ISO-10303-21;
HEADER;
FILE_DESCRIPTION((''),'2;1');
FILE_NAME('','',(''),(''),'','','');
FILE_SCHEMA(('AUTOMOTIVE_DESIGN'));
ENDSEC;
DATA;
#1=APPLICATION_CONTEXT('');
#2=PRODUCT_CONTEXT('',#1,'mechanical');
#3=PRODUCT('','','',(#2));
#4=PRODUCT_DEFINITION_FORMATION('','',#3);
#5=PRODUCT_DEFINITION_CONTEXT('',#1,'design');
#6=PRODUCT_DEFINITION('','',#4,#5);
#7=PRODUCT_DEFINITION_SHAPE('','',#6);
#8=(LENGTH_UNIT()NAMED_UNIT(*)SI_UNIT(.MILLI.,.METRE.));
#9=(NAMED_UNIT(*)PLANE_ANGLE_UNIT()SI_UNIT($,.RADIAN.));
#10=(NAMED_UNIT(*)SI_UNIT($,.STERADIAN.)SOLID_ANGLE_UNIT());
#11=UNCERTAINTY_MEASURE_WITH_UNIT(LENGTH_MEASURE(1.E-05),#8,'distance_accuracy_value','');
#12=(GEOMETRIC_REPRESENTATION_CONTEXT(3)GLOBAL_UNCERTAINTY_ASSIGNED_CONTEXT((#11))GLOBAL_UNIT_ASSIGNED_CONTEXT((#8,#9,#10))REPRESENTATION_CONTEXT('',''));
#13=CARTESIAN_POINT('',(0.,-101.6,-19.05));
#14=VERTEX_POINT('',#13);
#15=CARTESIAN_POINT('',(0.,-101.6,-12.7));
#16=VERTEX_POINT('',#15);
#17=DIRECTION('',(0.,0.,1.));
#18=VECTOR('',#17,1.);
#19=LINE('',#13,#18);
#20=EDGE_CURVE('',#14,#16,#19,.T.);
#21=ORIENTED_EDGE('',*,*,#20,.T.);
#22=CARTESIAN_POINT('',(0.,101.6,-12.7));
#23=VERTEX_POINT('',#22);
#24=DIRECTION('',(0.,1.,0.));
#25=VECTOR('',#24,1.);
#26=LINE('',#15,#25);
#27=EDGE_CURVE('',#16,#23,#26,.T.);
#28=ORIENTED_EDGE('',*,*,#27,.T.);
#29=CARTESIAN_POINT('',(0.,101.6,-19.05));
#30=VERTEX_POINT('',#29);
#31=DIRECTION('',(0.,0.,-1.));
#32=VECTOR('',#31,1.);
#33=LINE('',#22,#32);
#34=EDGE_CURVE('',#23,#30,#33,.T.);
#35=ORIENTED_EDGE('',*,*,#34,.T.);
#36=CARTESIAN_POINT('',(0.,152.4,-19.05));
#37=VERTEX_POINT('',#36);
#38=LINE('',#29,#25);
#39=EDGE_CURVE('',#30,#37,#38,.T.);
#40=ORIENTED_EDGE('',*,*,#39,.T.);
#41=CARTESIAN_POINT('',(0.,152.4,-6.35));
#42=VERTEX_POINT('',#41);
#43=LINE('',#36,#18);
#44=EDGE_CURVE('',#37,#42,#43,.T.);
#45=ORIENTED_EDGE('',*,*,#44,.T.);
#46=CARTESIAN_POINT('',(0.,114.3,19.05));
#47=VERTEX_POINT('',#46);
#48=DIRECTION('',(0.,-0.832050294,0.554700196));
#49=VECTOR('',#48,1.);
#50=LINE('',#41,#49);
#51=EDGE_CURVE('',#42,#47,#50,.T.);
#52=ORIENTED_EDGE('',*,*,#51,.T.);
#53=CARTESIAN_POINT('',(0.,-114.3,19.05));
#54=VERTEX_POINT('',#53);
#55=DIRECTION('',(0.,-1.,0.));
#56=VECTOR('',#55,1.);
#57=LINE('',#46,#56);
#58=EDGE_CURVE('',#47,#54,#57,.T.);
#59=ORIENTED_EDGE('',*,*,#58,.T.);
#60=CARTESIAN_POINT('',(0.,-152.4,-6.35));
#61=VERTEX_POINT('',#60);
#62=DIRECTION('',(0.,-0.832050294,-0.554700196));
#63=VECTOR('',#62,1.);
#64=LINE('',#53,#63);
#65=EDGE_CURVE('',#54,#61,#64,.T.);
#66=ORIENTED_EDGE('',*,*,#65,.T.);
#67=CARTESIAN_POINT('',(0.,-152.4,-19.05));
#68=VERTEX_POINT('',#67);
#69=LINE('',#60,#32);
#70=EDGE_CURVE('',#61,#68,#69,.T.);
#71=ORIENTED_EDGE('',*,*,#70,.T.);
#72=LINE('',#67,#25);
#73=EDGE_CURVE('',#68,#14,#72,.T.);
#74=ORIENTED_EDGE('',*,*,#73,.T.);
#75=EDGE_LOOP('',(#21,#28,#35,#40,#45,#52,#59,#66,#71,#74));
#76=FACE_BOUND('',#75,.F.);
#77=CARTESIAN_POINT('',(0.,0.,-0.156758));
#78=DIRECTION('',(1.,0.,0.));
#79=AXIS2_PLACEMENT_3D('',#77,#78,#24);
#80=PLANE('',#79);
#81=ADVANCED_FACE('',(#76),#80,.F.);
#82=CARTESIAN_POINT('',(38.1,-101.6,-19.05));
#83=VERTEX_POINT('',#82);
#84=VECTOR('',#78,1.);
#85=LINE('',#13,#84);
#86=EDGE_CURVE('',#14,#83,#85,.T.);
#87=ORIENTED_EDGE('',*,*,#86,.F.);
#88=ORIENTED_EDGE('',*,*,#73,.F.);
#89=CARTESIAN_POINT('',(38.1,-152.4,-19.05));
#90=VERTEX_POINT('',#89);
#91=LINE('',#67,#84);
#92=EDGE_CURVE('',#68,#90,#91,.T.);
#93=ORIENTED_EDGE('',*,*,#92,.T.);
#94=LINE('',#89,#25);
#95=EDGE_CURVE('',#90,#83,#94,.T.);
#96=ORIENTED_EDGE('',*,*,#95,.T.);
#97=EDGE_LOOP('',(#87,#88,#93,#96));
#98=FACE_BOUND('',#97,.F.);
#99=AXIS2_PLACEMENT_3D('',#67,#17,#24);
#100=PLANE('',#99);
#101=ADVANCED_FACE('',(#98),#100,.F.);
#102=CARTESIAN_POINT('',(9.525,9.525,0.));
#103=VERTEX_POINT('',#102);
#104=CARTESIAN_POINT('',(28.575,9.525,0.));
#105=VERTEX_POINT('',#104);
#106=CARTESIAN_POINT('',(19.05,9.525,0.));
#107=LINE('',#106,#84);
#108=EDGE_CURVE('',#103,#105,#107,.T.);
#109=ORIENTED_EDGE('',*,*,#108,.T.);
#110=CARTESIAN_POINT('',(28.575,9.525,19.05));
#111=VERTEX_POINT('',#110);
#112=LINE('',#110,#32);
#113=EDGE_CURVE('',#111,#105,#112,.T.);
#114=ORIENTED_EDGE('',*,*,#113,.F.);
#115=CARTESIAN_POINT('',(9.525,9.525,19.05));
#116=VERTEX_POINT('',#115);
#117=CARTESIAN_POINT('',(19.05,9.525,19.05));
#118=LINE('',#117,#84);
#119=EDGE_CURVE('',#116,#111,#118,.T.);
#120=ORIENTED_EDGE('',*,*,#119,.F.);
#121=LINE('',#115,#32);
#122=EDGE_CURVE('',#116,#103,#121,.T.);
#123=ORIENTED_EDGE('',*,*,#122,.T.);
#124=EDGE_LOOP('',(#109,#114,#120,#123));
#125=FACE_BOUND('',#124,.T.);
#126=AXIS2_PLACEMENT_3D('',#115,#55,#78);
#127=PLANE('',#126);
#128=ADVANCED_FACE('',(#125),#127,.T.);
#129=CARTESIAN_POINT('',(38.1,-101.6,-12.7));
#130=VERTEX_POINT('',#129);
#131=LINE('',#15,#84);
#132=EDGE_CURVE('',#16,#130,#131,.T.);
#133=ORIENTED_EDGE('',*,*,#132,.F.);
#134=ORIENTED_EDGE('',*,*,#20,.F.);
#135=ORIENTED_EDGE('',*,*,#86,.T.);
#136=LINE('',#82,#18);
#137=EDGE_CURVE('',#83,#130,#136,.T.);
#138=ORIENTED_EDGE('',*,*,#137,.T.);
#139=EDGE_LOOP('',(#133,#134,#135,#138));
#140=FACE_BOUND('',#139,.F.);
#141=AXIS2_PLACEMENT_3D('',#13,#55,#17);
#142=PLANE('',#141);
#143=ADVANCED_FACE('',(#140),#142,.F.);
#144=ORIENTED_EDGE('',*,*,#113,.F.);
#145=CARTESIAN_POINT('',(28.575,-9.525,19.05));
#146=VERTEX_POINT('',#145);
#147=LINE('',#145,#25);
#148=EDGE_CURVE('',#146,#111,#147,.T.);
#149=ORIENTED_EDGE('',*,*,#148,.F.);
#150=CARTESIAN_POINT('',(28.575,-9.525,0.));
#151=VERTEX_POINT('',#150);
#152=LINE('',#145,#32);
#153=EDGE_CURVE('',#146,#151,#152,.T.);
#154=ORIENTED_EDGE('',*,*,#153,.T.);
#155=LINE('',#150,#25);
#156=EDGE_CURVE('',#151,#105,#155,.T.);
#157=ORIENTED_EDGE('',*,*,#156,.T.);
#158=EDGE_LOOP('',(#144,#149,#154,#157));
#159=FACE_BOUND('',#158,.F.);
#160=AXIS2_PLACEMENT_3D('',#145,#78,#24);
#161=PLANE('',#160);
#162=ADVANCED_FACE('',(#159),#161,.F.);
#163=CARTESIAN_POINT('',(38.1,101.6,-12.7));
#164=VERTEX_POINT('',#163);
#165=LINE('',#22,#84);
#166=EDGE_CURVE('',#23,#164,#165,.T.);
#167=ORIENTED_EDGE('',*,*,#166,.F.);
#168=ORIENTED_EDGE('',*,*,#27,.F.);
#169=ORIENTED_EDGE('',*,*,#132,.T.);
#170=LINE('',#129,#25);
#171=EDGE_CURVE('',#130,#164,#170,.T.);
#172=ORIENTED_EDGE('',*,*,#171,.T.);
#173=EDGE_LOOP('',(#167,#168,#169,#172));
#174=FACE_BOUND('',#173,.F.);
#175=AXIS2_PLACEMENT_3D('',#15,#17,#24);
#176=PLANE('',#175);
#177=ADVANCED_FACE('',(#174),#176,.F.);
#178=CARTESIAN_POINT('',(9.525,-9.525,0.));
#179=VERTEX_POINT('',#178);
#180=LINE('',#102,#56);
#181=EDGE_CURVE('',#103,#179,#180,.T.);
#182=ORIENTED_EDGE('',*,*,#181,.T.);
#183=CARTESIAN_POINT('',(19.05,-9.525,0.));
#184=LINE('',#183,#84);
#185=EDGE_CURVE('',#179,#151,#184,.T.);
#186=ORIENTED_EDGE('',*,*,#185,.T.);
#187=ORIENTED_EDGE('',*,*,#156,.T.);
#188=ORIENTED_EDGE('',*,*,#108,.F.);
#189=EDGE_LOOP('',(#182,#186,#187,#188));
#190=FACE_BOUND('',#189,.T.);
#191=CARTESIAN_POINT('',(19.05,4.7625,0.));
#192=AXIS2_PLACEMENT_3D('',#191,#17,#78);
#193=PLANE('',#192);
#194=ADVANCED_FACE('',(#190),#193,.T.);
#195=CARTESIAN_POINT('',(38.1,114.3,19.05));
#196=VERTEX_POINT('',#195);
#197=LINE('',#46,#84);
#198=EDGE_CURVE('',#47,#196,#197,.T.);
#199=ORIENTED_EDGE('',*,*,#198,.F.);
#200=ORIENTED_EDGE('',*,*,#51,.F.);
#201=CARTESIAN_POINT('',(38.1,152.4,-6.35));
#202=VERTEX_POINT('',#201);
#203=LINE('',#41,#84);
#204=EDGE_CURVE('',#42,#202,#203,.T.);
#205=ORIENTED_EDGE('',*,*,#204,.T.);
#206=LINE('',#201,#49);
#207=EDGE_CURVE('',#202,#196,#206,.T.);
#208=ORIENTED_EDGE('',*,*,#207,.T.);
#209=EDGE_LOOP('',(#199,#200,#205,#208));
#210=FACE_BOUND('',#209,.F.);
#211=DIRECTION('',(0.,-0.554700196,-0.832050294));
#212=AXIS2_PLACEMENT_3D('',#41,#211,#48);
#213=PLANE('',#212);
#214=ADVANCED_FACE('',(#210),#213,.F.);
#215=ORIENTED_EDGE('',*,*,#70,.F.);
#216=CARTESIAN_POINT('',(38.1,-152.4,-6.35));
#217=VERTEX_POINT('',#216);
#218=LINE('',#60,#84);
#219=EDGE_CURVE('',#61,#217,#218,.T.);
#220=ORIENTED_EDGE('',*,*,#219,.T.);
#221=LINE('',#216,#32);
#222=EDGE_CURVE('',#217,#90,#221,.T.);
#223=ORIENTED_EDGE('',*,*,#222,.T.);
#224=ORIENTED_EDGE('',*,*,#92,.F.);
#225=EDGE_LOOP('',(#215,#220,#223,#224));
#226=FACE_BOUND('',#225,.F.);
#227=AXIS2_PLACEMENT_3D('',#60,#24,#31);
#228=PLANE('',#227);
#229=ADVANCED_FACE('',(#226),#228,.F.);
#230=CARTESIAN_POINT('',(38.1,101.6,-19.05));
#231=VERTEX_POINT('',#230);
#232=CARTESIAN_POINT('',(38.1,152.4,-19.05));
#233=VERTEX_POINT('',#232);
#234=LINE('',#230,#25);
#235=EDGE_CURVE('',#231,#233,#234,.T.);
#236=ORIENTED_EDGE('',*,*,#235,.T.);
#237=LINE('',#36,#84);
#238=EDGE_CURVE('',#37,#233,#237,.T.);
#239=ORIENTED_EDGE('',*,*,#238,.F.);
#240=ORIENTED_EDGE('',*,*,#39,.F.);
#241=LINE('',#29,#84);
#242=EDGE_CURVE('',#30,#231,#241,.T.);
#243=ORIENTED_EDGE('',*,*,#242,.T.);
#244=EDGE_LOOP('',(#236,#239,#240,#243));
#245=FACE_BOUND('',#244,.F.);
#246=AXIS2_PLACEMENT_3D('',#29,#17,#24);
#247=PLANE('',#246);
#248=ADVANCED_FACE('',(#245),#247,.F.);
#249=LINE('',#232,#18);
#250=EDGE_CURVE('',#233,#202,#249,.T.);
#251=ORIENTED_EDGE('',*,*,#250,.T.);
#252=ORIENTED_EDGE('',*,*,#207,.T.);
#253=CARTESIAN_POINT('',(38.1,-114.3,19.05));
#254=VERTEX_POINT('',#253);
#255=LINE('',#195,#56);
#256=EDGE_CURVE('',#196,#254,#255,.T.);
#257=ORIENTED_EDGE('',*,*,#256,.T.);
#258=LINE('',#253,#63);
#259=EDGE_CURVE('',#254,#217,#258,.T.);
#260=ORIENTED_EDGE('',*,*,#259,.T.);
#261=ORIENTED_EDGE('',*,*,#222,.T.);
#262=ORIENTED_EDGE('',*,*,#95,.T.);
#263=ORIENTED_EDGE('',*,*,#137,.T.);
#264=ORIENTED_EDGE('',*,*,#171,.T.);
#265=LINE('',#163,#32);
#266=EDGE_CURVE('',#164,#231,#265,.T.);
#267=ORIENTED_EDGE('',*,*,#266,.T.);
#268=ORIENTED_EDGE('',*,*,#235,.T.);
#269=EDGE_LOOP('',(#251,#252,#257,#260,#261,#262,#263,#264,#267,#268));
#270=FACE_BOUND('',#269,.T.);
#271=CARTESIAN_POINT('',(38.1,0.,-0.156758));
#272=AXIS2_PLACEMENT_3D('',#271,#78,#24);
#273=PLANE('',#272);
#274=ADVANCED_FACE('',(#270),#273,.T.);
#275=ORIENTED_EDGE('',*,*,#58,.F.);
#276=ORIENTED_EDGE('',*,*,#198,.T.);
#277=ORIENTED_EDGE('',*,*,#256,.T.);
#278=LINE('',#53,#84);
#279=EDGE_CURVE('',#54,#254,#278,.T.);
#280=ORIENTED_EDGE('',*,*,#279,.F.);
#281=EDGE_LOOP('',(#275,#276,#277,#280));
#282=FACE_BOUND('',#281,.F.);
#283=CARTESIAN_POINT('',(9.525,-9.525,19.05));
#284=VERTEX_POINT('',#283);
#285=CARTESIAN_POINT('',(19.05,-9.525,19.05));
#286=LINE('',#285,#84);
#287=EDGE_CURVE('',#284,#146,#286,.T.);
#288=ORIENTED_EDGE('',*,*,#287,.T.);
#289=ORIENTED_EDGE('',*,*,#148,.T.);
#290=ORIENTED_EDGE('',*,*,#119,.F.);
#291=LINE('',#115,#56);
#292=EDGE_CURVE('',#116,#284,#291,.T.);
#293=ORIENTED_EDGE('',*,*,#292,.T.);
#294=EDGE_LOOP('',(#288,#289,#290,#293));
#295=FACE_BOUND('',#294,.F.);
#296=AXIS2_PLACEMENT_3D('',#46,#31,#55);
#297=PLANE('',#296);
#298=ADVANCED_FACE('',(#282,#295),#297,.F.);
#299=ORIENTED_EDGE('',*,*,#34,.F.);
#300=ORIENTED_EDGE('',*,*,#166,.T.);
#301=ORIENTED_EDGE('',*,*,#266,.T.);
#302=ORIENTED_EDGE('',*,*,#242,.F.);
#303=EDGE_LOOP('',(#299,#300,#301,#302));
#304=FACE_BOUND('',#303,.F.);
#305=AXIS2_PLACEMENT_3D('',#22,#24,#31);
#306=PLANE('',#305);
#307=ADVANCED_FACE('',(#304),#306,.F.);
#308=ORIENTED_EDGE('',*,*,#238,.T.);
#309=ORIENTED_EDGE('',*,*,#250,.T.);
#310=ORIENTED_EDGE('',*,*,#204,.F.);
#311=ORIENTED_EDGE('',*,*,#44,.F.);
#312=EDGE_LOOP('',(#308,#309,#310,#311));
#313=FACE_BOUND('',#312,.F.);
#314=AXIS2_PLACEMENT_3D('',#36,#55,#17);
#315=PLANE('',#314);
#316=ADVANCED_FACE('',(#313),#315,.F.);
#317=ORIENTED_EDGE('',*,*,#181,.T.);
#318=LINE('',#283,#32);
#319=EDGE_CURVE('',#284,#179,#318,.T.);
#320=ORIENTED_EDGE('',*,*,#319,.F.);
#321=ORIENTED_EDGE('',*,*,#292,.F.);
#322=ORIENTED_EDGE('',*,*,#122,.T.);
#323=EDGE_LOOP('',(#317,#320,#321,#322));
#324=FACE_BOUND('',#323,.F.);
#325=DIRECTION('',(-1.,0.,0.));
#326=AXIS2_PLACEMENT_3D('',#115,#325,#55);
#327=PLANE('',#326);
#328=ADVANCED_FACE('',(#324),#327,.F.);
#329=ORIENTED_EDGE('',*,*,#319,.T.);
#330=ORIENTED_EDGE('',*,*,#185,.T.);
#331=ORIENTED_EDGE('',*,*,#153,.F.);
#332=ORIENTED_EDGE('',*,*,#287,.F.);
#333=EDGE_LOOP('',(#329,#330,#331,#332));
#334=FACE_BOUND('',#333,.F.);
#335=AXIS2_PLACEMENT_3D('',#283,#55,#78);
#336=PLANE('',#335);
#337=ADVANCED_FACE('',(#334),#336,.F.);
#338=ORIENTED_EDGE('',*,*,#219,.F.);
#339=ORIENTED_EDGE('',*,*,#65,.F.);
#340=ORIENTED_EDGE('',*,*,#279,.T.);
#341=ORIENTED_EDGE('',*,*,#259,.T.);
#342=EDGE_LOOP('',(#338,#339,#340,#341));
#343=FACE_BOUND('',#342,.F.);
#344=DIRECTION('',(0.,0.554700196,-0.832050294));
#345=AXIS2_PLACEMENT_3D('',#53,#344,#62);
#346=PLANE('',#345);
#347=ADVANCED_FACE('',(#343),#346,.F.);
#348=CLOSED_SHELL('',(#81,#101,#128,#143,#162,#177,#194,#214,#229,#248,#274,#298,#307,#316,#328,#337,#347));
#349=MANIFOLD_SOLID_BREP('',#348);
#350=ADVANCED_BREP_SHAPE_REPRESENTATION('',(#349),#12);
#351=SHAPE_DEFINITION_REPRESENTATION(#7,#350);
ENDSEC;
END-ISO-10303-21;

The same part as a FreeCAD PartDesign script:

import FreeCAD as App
import Part
import Sketcher

V = App.Vector
Q = App.Units.Quantity


def add_polygon(sketch, points):
    """Adds a closed chain of lines whose ends are joined by coincident constraints."""
    first, n = sketch.GeometryCount, len(points)
    for a, b in zip(points, points[1:] + points[:1]):
        sketch.addGeometry(Part.LineSegment(App.Vector(*a, 0), App.Vector(*b, 0)), False)
    for i in range(n):
        sketch.addConstraint(Sketcher.Constraint("Coincident", first + i, 2, first + (i + 1) % n, 1))

doc = App.newDocument("Part")
params = doc.addObject("Spreadsheet::Sheet", "Params")
for row, (alias, value) in enumerate([
    ("sketch1_width", "9 in"),
    ("sketch1_width2", "2 in"),
    ("sketch1_width3", "8 in"),
    ("sketch1_height", "0.5 in"),
    ("sketch1_height2", "0.25 in"),
    ("pad1_length", "1.5 in"),
    ("sketch2_width", "0.75 in"),
    ("pocket1_length", "0.75 in"),
], start=1):
    params.set(f"A{row}", alias)
    params.set(f"B{row}", "=" + value)
    params.setAlias(f"B{row}", alias)

body = doc.addObject("PartDesign::Body", "Body")

sketch1 = doc.addObject("Sketcher::SketchObject", "Sketch")
body.addObject(sketch1)
sketch1.AttachmentSupport = (doc.YZ_Plane, [""])
sketch1.MapMode = "FlatFace"
add_polygon(sketch1, [(152, -6), (114, 19), (-114, 19), (-152, -6), (-152, -19), (-102, -19), (-102, -13), (102, -13), (102, -19), (152, -19)])
sketch1.addConstraint(Sketcher.Constraint("Horizontal", 1))
sketch1.addConstraint(Sketcher.Constraint("Vertical", 3))
sketch1.addConstraint(Sketcher.Constraint("Horizontal", 4))
sketch1.addConstraint(Sketcher.Constraint("Vertical", 5))
sketch1.addConstraint(Sketcher.Constraint("Horizontal", 6))
sketch1.addConstraint(Sketcher.Constraint("Vertical", 7))
sketch1.addConstraint(Sketcher.Constraint("Horizontal", 8))
sketch1.addConstraint(Sketcher.Constraint("Vertical", 9))
sketch1.addConstraint(Sketcher.Constraint("Symmetric", 4, 2, 7, 2, -2))
sketch1.addConstraint(Sketcher.Constraint("Symmetric", 2, 2, 9, 2, -2))
sketch1.addConstraint(Sketcher.Constraint("Equal", 0, 2))
sketch1.addConstraint(Sketcher.Constraint("DistanceX", 1, 2, 1, 1, Q("9 in")))
sketch1.addConstraint(Sketcher.Constraint("DistanceX", 4, 1, 4, 2, Q("2 in")))
sketch1.addConstraint(Sketcher.Constraint("DistanceX", 6, 1, 6, 2, Q("8 in")))
sketch1.addConstraint(Sketcher.Constraint("DistanceY", 3, 2, 3, 1, Q("0.5 in")))
sketch1.addConstraint(Sketcher.Constraint("DistanceY", 2, 2, 1, 2, Q("1 in")))
sketch1.addConstraint(Sketcher.Constraint("DistanceY", 5, 1, 5, 2, Q("0.25 in")))
sketch1.addConstraint(Sketcher.Constraint("DistanceY", 5, 2, -1, 1, Q("0.5 in")))
sketch1.setExpression("Constraints[21]", "Params.sketch1_width")
sketch1.setExpression("Constraints[22]", "Params.sketch1_width2")
sketch1.setExpression("Constraints[23]", "Params.sketch1_width3")
sketch1.setExpression("Constraints[24]", "Params.sketch1_height")
sketch1.setExpression("Constraints[26]", "Params.sketch1_height2")
pad1 = doc.addObject("PartDesign::Pad", "Pad")
body.addObject(pad1)
pad1.Profile = sketch1
pad1.setExpression("Length", "Params.pad1_length")

sketch2 = doc.addObject("Sketcher::SketchObject", "Sketch001")
body.addObject(sketch2)
sketch2.AttachmentSupport = (doc.XY_Plane, [""])
sketch2.MapMode = "FlatFace"
sketch2.AttachmentOffset = App.Placement(V(0, 0, 0.75 * 25.4), App.Rotation())
add_polygon(sketch2, [(10, 10), (10, -10), (29, -10), (29, 10)])
sketch2.addConstraint(Sketcher.Constraint("Vertical", 0))
sketch2.addConstraint(Sketcher.Constraint("Horizontal", 1))
sketch2.addConstraint(Sketcher.Constraint("Vertical", 2))
sketch2.addConstraint(Sketcher.Constraint("Horizontal", 3))
sketch2.addConstraint(Sketcher.Constraint("Equal", 3, 0))
sketch2.addConstraint(Sketcher.Constraint("DistanceX", 1, 1, 1, 2, Q("0.75 in")))
sketch2.addConstraint(Sketcher.Constraint("DistanceX", -1, 1, 0, 2, Q("0.375 in")))
sketch2.addConstraint(Sketcher.Constraint("DistanceY", 0, 2, -1, 1, Q("0.375 in")))
sketch2.setExpression("Constraints[9]", "Params.sketch2_width")
pocket1 = doc.addObject("PartDesign::Pocket", "Pocket")
body.addObject(pocket1)
pocket1.Profile = sketch2
pocket1.setExpression("Length", "Params.pocket1_length")
body2 = doc.addObject("PartDesign::Body", "Body001")
doc.recompute()

body2.BaseFeature = body
doc.recompute()
body.Visibility = False

doc.recompute()
